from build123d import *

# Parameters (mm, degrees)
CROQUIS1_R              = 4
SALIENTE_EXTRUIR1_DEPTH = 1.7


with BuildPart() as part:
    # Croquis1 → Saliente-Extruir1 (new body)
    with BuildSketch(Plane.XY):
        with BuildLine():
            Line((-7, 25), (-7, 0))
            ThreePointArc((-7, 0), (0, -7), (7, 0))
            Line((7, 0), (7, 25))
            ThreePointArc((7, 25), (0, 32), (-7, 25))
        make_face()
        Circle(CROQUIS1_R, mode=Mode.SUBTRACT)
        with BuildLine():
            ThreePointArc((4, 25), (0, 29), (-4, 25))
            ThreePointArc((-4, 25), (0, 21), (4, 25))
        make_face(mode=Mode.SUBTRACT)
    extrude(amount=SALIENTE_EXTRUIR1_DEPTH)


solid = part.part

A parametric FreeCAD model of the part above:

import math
import FreeCAD as App
import Part
import Sketcher
Q = App.Units.Quantity

doc = App.newDocument("Part")
body = doc.addObject("PartDesign::Body", "Body")

# Sketch on XY plane
sketch1 = body.newObject("Sketcher::SketchObject", "Sketch")
sketch1.AttachmentSupport = (doc.getObject("XY_Plane"), [""])
sketch1.MapMode = "FlatFace"
sketch1.addGeometry([
    Part.LineSegment(App.Vector(-7, 25, 0), App.Vector(-7, 0, 0)),  # 0
    Part.ArcOfCircle(Part.Circle(App.Vector(0, 0, 0), App.Vector(0, 0, 1), 7), math.radians(180), math.radians(360)),  # 1
    Part.LineSegment(App.Vector(7, 0, 0), App.Vector(7, 25, 0)),  # 2
    Part.ArcOfCircle(Part.Circle(App.Vector(0, 25, 0), App.Vector(0, 0, 1), 7), math.radians(0), math.radians(180)),  # 3
    Part.Circle(App.Vector(0, 0, 0), App.Vector(0, 0, 1), 4),  # 4
    Part.Circle(App.Vector(0, 25, 0), App.Vector(0, 0, 1), 4),  # 5
], False)
sketch1.addConstraint([
    Sketcher.Constraint("Tangent", 0, 2, 1, 1),
    Sketcher.Constraint("Tangent", 1, 2, 2, 1),
    Sketcher.Constraint("Tangent", 2, 2, 3, 1),
    Sketcher.Constraint("Tangent", 3, 2, 0, 1),
    Sketcher.Constraint("Vertical", 0),
    Sketcher.Constraint("Vertical", 2),
    Sketcher.Constraint("Coincident", 1, 3, -1, 1),
    Sketcher.Constraint("Coincident", 4, 3, -1, 1),
    Sketcher.Constraint("Coincident", 5, 3, 3, 3),
    Sketcher.Constraint("Equal", 4, 5),
    Sketcher.Constraint("Diameter", 4, Q("8 mm")),
    Sketcher.Constraint("Radius", 1, Q("7 mm")),
    Sketcher.Constraint("DistanceY", 0, 2, 0, 1, Q("25 mm")),
])
pad1 = body.newObject("PartDesign::Pad", "Pad")
pad1.Profile = sketch1
pad1.Length = 1.7

doc.recompute()
